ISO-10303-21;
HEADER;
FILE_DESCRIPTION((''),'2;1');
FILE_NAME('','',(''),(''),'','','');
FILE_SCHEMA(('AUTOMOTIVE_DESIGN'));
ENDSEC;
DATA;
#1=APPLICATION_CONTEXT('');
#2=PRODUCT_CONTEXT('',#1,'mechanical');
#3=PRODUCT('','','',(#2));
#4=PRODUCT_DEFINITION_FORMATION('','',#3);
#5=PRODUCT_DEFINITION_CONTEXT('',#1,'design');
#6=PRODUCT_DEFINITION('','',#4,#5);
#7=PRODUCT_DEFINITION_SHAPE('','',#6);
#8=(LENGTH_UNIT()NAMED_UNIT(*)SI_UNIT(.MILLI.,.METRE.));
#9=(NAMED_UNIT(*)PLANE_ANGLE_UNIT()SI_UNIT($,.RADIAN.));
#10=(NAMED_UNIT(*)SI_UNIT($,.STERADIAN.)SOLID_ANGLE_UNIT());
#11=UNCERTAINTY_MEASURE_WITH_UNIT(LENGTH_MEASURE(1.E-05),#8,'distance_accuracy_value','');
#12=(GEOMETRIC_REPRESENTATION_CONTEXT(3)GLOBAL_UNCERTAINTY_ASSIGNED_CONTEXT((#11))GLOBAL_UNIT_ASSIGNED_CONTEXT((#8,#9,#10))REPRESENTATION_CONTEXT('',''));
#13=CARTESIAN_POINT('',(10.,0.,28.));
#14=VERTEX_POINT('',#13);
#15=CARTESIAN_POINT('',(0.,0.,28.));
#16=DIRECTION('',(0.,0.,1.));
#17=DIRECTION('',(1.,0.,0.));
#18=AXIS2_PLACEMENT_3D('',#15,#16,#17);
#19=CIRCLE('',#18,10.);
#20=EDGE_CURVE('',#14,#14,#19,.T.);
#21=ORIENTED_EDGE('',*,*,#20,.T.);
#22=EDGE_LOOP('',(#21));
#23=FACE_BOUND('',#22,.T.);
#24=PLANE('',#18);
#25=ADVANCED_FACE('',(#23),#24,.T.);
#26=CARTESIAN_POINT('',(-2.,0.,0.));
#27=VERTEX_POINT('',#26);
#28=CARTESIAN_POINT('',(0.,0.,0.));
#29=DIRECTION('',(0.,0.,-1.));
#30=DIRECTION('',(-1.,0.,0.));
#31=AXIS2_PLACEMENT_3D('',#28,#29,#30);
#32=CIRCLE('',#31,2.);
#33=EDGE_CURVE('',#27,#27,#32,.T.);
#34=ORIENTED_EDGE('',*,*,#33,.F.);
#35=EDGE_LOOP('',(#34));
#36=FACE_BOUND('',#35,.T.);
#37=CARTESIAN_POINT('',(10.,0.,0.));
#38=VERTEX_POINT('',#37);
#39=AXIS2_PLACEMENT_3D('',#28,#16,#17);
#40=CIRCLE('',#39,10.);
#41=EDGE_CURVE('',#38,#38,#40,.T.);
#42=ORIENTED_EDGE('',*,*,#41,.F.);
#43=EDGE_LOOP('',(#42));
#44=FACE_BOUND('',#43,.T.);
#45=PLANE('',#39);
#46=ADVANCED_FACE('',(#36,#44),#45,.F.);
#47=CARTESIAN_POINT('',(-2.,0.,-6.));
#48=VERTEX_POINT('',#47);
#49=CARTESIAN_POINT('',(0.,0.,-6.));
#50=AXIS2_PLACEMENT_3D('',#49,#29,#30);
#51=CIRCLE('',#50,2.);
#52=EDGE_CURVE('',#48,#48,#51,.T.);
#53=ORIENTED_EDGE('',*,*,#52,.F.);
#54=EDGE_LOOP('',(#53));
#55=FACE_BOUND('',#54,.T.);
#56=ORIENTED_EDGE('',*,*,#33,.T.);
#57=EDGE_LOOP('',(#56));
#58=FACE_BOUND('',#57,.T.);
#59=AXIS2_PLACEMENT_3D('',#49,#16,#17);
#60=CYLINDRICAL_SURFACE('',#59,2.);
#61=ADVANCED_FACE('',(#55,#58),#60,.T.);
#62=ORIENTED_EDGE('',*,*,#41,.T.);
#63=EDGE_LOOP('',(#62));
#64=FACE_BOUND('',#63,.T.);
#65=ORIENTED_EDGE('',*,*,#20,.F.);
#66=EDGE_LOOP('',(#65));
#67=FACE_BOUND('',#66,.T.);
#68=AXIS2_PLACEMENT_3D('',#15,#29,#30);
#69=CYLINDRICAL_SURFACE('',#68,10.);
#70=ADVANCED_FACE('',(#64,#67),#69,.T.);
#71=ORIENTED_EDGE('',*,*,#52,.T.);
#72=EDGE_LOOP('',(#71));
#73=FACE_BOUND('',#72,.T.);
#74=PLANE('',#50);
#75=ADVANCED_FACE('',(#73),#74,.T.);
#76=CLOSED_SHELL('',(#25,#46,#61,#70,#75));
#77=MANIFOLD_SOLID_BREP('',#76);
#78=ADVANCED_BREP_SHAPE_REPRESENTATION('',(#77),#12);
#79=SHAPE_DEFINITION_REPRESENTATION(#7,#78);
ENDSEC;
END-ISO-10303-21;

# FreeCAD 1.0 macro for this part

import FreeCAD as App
import Part
import Sketcher
from FreeCAD import Vector

doc = App.newDocument("Part")
body = doc.addObject("PartDesign::Body", "Body")

sketch1 = body.newObject("Sketcher::SketchObject", "Sketch")
sketch1.AttachmentSupport = (doc.getObject("XY_Plane"), [""])
sketch1.MapMode = "FlatFace"
sketch1.addGeometry(Part.Circle(Vector(0, 0, 0), Vector(0, 0, 1), 10), False)
sketch1.addConstraint([
    Sketcher.Constraint("Coincident", 0, 3, -1, 1),
    Sketcher.Constraint("Diameter", 0, 20.0),
])
pad1 = body.newObject("PartDesign::Pad", "Pad")
pad1.Profile = sketch1
pad1.Length = 28

sketch2 = body.newObject("Sketcher::SketchObject", "Sketch001")
sketch2.AttachmentSupport = (doc.getObject("XY_Plane"), [""])
sketch2.MapMode = "FlatFace"
sketch2.addGeometry(Part.Circle(Vector(0, 0, 0), Vector(0, 0, 1), 2), False)
sketch2.addConstraint([
    Sketcher.Constraint("Coincident", 0, 3, -1, 1),
    Sketcher.Constraint("Diameter", 0, 4.0),
])
pad2 = body.newObject("PartDesign::Pad", "Pad001")
pad2.Profile = sketch2
pad2.Length = 6
pad2.Reversed = True

doc.recompute()
